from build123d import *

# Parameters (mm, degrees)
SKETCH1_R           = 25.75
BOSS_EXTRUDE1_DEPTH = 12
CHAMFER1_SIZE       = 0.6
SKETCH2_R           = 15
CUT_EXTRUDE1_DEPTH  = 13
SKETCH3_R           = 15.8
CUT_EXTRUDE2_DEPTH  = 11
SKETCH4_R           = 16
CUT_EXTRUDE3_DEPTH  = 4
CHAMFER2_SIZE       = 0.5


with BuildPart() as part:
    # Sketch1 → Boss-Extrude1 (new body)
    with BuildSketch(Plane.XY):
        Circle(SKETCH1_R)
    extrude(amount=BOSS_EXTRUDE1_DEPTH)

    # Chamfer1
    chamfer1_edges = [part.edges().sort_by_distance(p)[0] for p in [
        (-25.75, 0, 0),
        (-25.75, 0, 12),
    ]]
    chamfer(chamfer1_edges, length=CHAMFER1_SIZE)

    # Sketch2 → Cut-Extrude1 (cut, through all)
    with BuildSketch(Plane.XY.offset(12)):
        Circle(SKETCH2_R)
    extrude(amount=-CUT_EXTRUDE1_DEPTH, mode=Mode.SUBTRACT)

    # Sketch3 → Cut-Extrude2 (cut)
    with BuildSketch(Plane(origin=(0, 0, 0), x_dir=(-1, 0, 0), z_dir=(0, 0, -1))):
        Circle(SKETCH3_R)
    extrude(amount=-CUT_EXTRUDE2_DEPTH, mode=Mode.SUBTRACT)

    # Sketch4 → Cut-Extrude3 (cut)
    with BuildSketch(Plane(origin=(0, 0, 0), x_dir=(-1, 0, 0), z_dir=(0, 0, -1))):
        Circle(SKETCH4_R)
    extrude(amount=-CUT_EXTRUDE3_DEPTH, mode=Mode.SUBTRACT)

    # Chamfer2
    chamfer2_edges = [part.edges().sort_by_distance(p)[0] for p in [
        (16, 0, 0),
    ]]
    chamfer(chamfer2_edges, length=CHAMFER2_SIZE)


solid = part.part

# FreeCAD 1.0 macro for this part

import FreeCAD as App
import Part
import Sketcher
from FreeCAD import Vector
Q = App.Units.Quantity


def edges_at(feature, points):
    """Names of the edges that pass closest to the given points."""
    edges = feature.Shape.Edges
    near = lambda p: min(range(len(edges)), key=lambda i: edges[i].distToShape(Part.Vertex(*p))[0])
    return sorted({f"Edge{near(p) + 1}" for p in points})

doc = App.newDocument("Part")
body = doc.addObject("PartDesign::Body", "Body")

sketch1 = doc.addObject("Sketcher::SketchObject", "Sketch")
body.addObject(sketch1)
sketch1.AttachmentSupport = (doc.XY_Plane, [""])
sketch1.MapMode = "FlatFace"
sketch1.addGeometry(Part.Circle(Vector(0, 0, 0), Vector(0, 0, 1), 25.75), False)
sketch1.addConstraint([
    Sketcher.Constraint("Coincident", 0, 3, -1, 1),
    Sketcher.Constraint("Diameter", 0, Q("51.5 mm")),
])
pad1 = doc.addObject("PartDesign::Pad", "Pad")
body.addObject(pad1)
pad1.Profile = sketch1
pad1.Length = 12
doc.recompute()

chamfer = doc.addObject("PartDesign::Chamfer", "Chamfer")
body.addObject(chamfer)
chamfer.Base = (pad1, edges_at(pad1, [(-25.75, 0, 0), (-25.75, 0, 12)]))
chamfer.Size = 0.6

sketch2 = doc.addObject("Sketcher::SketchObject", "Sketch001")
body.addObject(sketch2)
sketch2.AttachmentSupport = (doc.XY_Plane, [""])
sketch2.MapMode = "FlatFace"
sketch2.AttachmentOffset = App.Placement(Vector(0, 0, 12), App.Rotation())
sketch2.addGeometry(Part.Circle(Vector(0, 0, 0), Vector(0, 0, 1), 15), False)
sketch2.addConstraint([
    Sketcher.Constraint("Coincident", 0, 3, -1, 1),
    Sketcher.Constraint("Diameter", 0, Q("30 mm")),
])
pocket1 = doc.addObject("PartDesign::Pocket", "Pocket")
body.addObject(pocket1)
pocket1.Profile = sketch2
pocket1.Type = "ThroughAll"

sketch3 = doc.addObject("Sketcher::SketchObject", "Sketch002")
body.addObject(sketch3)
sketch3.AttachmentSupport = (doc.XY_Plane, [""])
sketch3.MapMode = "FlatFace"
sketch3.addGeometry(Part.Circle(Vector(0, 0, 0), Vector(0, 0, 1), 15.8), False)
sketch3.addConstraint([
    Sketcher.Constraint("Coincident", 0, 3, -1, 1),
    Sketcher.Constraint("Diameter", 0, Q("31.6 mm")),
])
pocket2 = doc.addObject("PartDesign::Pocket", "Pocket001")
body.addObject(pocket2)
pocket2.Profile = sketch3
pocket2.Length = 11
pocket2.Reversed = True

sketch4 = doc.addObject("Sketcher::SketchObject", "Sketch003")
body.addObject(sketch4)
sketch4.AttachmentSupport = (doc.XY_Plane, [""])
sketch4.MapMode = "FlatFace"
sketch4.addGeometry(Part.Circle(Vector(0, 0, 0), Vector(0, 0, 1), 16), False)
sketch4.addConstraint([
    Sketcher.Constraint("Coincident", 0, 3, -1, 1),
    Sketcher.Constraint("Diameter", 0, Q("32 mm")),
])
pocket3 = doc.addObject("PartDesign::Pocket", "Pocket002")
body.addObject(pocket3)
pocket3.Profile = sketch4
pocket3.Length = 4
pocket3.Reversed = True
doc.recompute()

chamfer2 = doc.addObject("PartDesign::Chamfer", "Chamfer001")
body.addObject(chamfer2)
chamfer2.Base = (pocket3, edges_at(pocket3, [(16, 0, 0)]))
chamfer2.Size = 0.5

doc.recompute()
